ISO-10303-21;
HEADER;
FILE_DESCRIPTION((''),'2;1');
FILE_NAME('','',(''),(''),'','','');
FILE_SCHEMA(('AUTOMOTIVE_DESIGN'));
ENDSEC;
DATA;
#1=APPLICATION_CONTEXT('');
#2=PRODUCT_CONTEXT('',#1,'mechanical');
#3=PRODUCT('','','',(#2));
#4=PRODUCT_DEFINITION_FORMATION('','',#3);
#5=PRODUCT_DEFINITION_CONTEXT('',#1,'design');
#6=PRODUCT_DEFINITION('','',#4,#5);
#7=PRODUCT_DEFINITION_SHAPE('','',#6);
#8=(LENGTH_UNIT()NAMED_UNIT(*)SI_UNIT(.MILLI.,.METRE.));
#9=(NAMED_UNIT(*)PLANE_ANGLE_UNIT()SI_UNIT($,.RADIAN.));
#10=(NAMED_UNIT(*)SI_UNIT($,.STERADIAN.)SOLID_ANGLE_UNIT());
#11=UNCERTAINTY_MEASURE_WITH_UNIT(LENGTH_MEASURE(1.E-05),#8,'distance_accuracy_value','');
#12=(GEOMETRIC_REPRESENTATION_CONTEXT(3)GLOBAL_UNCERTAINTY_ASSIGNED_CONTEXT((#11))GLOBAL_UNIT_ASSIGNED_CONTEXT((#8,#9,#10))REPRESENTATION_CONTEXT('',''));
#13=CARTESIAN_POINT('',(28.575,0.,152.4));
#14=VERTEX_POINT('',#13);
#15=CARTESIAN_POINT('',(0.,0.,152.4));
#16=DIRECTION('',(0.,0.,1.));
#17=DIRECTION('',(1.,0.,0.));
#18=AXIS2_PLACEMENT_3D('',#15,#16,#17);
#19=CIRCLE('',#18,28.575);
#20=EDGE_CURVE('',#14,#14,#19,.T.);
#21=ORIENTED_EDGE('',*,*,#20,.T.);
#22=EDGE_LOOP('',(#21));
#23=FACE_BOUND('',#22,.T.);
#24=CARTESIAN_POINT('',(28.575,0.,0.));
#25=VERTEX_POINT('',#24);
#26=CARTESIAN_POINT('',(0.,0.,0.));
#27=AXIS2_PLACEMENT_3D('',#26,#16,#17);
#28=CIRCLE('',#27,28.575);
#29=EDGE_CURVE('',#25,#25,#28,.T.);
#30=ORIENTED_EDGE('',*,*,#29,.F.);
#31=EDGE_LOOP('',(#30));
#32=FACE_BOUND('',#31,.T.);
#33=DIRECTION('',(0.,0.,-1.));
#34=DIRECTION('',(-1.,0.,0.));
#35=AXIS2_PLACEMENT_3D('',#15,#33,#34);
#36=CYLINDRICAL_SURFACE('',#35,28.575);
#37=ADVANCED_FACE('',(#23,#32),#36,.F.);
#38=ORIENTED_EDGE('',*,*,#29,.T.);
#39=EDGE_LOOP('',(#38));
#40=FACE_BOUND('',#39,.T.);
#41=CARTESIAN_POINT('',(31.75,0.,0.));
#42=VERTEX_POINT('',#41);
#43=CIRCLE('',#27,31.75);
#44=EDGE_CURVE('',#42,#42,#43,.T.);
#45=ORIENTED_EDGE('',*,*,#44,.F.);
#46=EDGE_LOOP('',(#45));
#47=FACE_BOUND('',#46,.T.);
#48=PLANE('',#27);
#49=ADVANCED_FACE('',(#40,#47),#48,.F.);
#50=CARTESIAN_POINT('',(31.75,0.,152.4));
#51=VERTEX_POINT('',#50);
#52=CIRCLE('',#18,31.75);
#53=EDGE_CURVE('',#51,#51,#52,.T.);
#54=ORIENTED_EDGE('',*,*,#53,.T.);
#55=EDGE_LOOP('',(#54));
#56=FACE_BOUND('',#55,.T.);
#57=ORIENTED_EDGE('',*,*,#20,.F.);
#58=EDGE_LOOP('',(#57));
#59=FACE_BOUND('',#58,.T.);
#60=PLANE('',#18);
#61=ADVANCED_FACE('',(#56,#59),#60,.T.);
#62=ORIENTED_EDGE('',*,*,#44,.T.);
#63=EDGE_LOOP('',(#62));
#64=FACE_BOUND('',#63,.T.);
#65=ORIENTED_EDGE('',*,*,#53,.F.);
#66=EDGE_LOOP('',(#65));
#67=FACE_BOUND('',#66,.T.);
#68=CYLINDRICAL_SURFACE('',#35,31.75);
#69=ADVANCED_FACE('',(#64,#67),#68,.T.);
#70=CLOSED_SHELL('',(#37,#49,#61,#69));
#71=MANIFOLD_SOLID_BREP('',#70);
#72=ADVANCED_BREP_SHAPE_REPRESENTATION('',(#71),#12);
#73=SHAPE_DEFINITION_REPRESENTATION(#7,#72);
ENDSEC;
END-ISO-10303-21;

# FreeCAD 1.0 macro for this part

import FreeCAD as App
import Part
import Sketcher

V = App.Vector
Q = App.Units.Quantity

doc = App.newDocument("Part")
body = doc.addObject("PartDesign::Body", "Body")

# Sketch on XY plane
sketch1 = body.newObject("Sketcher::SketchObject", "Sketch")
sketch1.AttachmentSupport = (doc.getObject("XY_Plane"), [""])
sketch1.MapMode = "FlatFace"
sketch1.addGeometry([
    Part.Circle(V(0, 0, 0), V(0, 0, 1), 31.75),
    Part.Circle(V(0, 0, 0), V(0, 0, 1), 28.575),
], False)
sketch1.addConstraint([
    Sketcher.Constraint("Coincident", 0, 3, -1, 1),
    Sketcher.Constraint("Coincident", 1, 3, -1, 1),
    Sketcher.Constraint("Diameter", 0, Q("2.5 in")),
    Sketcher.Constraint("Diameter", 1, Q("2.25 in")),
])
pad1 = body.newObject("PartDesign::Pad", "Pad")
pad1.Profile = sketch1
pad1.Length = Q("6 in")

doc.recompute()
